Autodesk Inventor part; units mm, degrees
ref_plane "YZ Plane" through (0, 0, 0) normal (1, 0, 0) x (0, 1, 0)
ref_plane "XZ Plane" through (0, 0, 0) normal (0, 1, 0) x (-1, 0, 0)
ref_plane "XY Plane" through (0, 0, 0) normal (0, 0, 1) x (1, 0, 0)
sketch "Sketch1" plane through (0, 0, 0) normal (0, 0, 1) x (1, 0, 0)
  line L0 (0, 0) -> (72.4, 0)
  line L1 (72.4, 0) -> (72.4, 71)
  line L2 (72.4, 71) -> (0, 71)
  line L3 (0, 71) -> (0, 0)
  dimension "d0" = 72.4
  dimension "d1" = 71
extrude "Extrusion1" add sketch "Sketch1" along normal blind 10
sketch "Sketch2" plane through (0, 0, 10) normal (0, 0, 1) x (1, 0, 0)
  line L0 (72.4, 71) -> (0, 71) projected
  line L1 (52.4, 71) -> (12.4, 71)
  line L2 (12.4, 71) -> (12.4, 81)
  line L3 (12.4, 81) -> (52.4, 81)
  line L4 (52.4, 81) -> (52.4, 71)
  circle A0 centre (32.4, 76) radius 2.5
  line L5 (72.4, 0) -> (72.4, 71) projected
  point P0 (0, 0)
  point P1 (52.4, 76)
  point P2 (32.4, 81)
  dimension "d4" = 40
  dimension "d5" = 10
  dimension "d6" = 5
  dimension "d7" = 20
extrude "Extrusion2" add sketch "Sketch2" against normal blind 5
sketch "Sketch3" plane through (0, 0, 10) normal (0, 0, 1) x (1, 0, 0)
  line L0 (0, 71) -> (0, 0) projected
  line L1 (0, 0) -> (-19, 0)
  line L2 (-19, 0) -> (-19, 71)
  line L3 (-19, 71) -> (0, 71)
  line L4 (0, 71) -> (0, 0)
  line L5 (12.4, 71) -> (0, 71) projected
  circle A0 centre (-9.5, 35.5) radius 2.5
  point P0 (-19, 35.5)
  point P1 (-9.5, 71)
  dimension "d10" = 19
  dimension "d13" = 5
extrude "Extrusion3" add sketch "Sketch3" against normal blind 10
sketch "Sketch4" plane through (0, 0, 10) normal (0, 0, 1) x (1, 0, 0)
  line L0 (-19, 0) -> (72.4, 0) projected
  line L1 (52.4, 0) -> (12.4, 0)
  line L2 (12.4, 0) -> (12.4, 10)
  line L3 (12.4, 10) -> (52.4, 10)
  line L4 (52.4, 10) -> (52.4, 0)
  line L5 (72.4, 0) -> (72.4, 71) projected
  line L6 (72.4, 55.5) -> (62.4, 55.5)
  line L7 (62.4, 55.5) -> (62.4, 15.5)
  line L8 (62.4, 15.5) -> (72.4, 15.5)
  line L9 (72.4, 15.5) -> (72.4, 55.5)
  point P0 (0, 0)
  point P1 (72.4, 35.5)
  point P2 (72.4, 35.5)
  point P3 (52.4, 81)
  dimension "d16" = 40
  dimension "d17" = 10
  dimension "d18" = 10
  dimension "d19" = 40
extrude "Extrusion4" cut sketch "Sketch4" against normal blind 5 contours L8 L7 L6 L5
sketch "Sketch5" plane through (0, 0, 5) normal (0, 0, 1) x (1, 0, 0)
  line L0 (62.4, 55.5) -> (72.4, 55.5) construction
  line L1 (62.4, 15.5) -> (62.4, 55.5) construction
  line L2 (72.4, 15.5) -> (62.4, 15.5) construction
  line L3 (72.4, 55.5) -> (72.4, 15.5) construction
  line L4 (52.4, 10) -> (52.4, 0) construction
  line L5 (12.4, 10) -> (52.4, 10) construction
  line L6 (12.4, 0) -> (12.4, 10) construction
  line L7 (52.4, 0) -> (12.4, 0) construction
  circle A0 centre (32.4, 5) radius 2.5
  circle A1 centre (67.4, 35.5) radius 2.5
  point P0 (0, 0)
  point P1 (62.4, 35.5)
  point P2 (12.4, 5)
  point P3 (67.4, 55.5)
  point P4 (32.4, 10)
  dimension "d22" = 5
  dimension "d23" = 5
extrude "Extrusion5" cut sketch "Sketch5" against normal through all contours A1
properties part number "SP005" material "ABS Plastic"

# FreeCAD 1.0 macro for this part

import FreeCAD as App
import Part
import Sketcher
Q = App.Units.Quantity


def add_polygon(sketch, points):
    """Adds a closed chain of lines whose ends are joined by coincident constraints."""
    first, n = sketch.GeometryCount, len(points)
    for a, b in zip(points, points[1:] + points[:1]):
        sketch.addGeometry(Part.LineSegment(App.Vector(*a, 0), App.Vector(*b, 0)), False)
    for i in range(n):
        sketch.addConstraint(Sketcher.Constraint("Coincident", first + i, 2, first + (i + 1) % n, 1))

doc = App.newDocument("Part")
params = doc.addObject("Spreadsheet::Sheet", "Params")
for row, (alias, value) in enumerate([
    ("sketch1_height", "71 mm"),
    ("sketch1_width", "72.4 mm"),
    ("pad1_length", "10 mm"),
    ("sketch2_diameter", "5 mm"),
    ("sketch2_width", "40 mm"),
    ("sketch2_height", "10 mm"),
    ("pad2_length", "5 mm"),
    ("sketch3_diameter", "5 mm"),
    ("sketch3_width", "19 mm"),
    ("sketch3_height", "71 mm"),
    ("pad3_length", "10 mm"),
    ("sketch4_width", "10 mm"),
    ("sketch4_height", "40 mm"),
    ("pocket1_length", "5 mm"),
    ("sketch5_diameter", "5 mm"),
], start=1):
    params.set(f"A{row}", alias)
    params.set(f"B{row}", "=" + value)
    params.setAlias(f"B{row}", alias)

body = doc.addObject("PartDesign::Body", "Body")

# Sketch on XY plane
sketch1 = doc.addObject("Sketcher::SketchObject", "Sketch")
body.addObject(sketch1)
sketch1.AttachmentSupport = (doc.XY_Plane, [""])
sketch1.MapMode = "FlatFace"
add_polygon(sketch1, [(0, 71), (0, 0), (72, 0), (72, 71)])  # lines 0-3
sketch1.addConstraint([
    Sketcher.Constraint("Vertical", 0),
    Sketcher.Constraint("Horizontal", 1),
    Sketcher.Constraint("Vertical", 2),
    Sketcher.Constraint("Horizontal", 3),
    Sketcher.Constraint("Coincident", 0, 2, -1, 1),
    Sketcher.Constraint("DistanceY", 0, 2, 0, 1, Q("71 mm")),
    Sketcher.Constraint("DistanceX", 1, 1, 1, 2, Q("72.4 mm")),
])
sketch1.setExpression("Constraints[9]", "Params.sketch1_height")
sketch1.setExpression("Constraints[10]", "Params.sketch1_width")
pad1 = doc.addObject("PartDesign::Pad", "Pad")
body.addObject(pad1)
pad1.Profile = sketch1
pad1.setExpression("Length", "Params.pad1_length")

# Sketch on XY plane
sketch2 = doc.addObject("Sketcher::SketchObject", "Sketch001")
body.addObject(sketch2)
sketch2.AttachmentSupport = (doc.XY_Plane, [""])
sketch2.MapMode = "FlatFace"
sketch2.AttachmentOffset = App.Placement(App.Vector(0, 0, 10), App.Rotation())
add_polygon(sketch2, [(12.4, 71), (52.4, 71), (52.4, 81), (12.4, 81)])  # lines 0-3
sketch2.addGeometry(Part.Circle(App.Vector(32.4, 76, 0), App.Vector(0, 0, 1), 2.5), False)  # 4
sketch2.addConstraint([
    Sketcher.Constraint("Horizontal", 0),
    Sketcher.Constraint("Vertical", 1),
    Sketcher.Constraint("Horizontal", 2),
    Sketcher.Constraint("Vertical", 3),
    Sketcher.Constraint("Diameter", 4, Q("5 mm")),
    Sketcher.Constraint("DistanceX", 0, 1, 0, 2, Q("40 mm")),
    Sketcher.Constraint("DistanceY", 1, 1, 1, 2, Q("10 mm")),
    Sketcher.Constraint("DistanceX", 4, 3, 0, 2, Q("20 mm")),
    Sketcher.Constraint("DistanceY", 0, 2, 4, 3, Q("5 mm")),
    Sketcher.Constraint("DistanceY", -1, 1, 4, 3, Q("76 mm")),
    Sketcher.Constraint("DistanceX", -1, 1, 4, 3, Q("32.4 mm")),
])
sketch2.setExpression("Constraints[8]", "Params.sketch2_diameter")
sketch2.setExpression("Constraints[9]", "Params.sketch2_width")
sketch2.setExpression("Constraints[10]", "Params.sketch2_height")
pad2 = doc.addObject("PartDesign::Pad", "Pad001")
body.addObject(pad2)
pad2.Profile = sketch2
pad2.setExpression("Length", "Params.pad2_length")
pad2.Reversed = True

# Sketch on XY plane
sketch3 = doc.addObject("Sketcher::SketchObject", "Sketch002")
body.addObject(sketch3)
sketch3.AttachmentSupport = (doc.XY_Plane, [""])
sketch3.MapMode = "FlatFace"
sketch3.AttachmentOffset = App.Placement(App.Vector(0, 0, 10), App.Rotation())
add_polygon(sketch3, [(0, 0), (0, 71), (-19, 71), (-19, 0)])  # lines 0-3
sketch3.addGeometry(Part.Circle(App.Vector(-9.5, 35.5, 0), App.Vector(0, 0, 1), 2.5), False)  # 4
sketch3.addConstraint([
    Sketcher.Constraint("Vertical", 0),
    Sketcher.Constraint("Horizontal", 1),
    Sketcher.Constraint("Vertical", 2),
    Sketcher.Constraint("Horizontal", 3),
    Sketcher.Constraint("Coincident", 3, 2, -1, 1),
    Sketcher.Constraint("Diameter", 4, Q("5 mm")),
    Sketcher.Constraint("DistanceX", 1, 2, 1, 1, Q("19 mm")),
    Sketcher.Constraint("DistanceY", 0, 1, 0, 2, Q("71 mm")),
    Sketcher.Constraint("DistanceX", 4, 3, -1, 1, Q("9.5 mm")),
    Sketcher.Constraint("DistanceY", -1, 1, 4, 3, Q("35.5 mm")),
])
sketch3.setExpression("Constraints[9]", "Params.sketch3_diameter")
sketch3.setExpression("Constraints[10]", "Params.sketch3_width")
sketch3.setExpression("Constraints[11]", "Params.sketch3_height")
pad3 = doc.addObject("PartDesign::Pad", "Pad002")
body.addObject(pad3)
pad3.Profile = sketch3
pad3.setExpression("Length", "Params.pad3_length")
pad3.Reversed = True

# Sketch on XY plane
sketch4 = doc.addObject("Sketcher::SketchObject", "Sketch003")
body.addObject(sketch4)
sketch4.AttachmentSupport = (doc.XY_Plane, [""])
sketch4.MapMode = "FlatFace"
sketch4.AttachmentOffset = App.Placement(App.Vector(0, 0, 10), App.Rotation())
add_polygon(sketch4, [(62, 16), (72, 16), (72, 56), (62, 56)])  # lines 0-3
sketch4.addConstraint([
    Sketcher.Constraint("Horizontal", 0),
    Sketcher.Constraint("Vertical", 1),
    Sketcher.Constraint("Horizontal", 2),
    Sketcher.Constraint("Vertical", 3),
    Sketcher.Constraint("DistanceX", 0, 1, 0, 2, Q("10 mm")),
    Sketcher.Constraint("DistanceY", 1, 1, 1, 2, Q("40 mm")),
    Sketcher.Constraint("DistanceX", -1, 1, 0, 2, Q("72.4 mm")),
    Sketcher.Constraint("DistanceY", -1, 1, 0, 2, Q("15.5 mm")),
])
sketch4.setExpression("Constraints[8]", "Params.sketch4_width")
sketch4.setExpression("Constraints[9]", "Params.sketch4_height")
pocket1 = doc.addObject("PartDesign::Pocket", "Pocket")
body.addObject(pocket1)
pocket1.Profile = sketch4
pocket1.setExpression("Length", "Params.pocket1_length")

# Sketch on XY plane
sketch5 = doc.addObject("Sketcher::SketchObject", "Sketch004")
body.addObject(sketch5)
sketch5.AttachmentSupport = (doc.XY_Plane, [""])
sketch5.MapMode = "FlatFace"
sketch5.AttachmentOffset = App.Placement(App.Vector(0, 0, 5), App.Rotation())
sketch5.addGeometry(Part.Circle(App.Vector(67.4, 35.5, 0), App.Vector(0, 0, 1), 2.5), False)
sketch5.addConstraint([
    Sketcher.Constraint("Diameter", 0, Q("5 mm")),
    Sketcher.Constraint("DistanceX", -1, 1, 0, 3, Q("67.4 mm")),
    Sketcher.Constraint("DistanceY", -1, 1, 0, 3, Q("35.5 mm")),
])
sketch5.setExpression("Constraints[0]", "Params.sketch5_diameter")
pocket2 = doc.addObject("PartDesign::Pocket", "Pocket001")
body.addObject(pocket2)
pocket2.Profile = sketch5
pocket2.Type = "ThroughAll"

doc.recompute()
